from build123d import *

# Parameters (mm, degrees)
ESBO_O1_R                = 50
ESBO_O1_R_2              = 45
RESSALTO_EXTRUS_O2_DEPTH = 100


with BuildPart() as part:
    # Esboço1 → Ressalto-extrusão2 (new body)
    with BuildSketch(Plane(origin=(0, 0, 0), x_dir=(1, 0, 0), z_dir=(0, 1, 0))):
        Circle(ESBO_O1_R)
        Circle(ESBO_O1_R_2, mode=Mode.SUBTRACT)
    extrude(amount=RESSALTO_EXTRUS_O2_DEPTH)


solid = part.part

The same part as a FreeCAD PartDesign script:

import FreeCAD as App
import Part
import Sketcher

V = App.Vector

doc = App.newDocument("Part")
body = doc.addObject("PartDesign::Body", "Body")

sketch1 = doc.addObject("Sketcher::SketchObject", "Sketch")
body.addObject(sketch1)
sketch1.AttachmentSupport = (doc.XZ_Plane, [""])
sketch1.MapMode = "FlatFace"
sketch1.addGeometry([
    Part.Circle(V(0, 0, 0), V(0, 0, 1), 50),
    Part.Circle(V(0, 0, 0), V(0, 0, 1), 45),
], False)
sketch1.addConstraint([
    Sketcher.Constraint("Coincident", 0, 3, -1, 1),
    Sketcher.Constraint("Coincident", 1, 3, -1, 1),
    Sketcher.Constraint("Diameter", 0, 100.0),
    Sketcher.Constraint("Diameter", 1, 90.0),
])
pad1 = doc.addObject("PartDesign::Pad", "Pad")
body.addObject(pad1)
pad1.Profile = sketch1
pad1.Length = 100
pad1.Reversed = True

doc.recompute()
